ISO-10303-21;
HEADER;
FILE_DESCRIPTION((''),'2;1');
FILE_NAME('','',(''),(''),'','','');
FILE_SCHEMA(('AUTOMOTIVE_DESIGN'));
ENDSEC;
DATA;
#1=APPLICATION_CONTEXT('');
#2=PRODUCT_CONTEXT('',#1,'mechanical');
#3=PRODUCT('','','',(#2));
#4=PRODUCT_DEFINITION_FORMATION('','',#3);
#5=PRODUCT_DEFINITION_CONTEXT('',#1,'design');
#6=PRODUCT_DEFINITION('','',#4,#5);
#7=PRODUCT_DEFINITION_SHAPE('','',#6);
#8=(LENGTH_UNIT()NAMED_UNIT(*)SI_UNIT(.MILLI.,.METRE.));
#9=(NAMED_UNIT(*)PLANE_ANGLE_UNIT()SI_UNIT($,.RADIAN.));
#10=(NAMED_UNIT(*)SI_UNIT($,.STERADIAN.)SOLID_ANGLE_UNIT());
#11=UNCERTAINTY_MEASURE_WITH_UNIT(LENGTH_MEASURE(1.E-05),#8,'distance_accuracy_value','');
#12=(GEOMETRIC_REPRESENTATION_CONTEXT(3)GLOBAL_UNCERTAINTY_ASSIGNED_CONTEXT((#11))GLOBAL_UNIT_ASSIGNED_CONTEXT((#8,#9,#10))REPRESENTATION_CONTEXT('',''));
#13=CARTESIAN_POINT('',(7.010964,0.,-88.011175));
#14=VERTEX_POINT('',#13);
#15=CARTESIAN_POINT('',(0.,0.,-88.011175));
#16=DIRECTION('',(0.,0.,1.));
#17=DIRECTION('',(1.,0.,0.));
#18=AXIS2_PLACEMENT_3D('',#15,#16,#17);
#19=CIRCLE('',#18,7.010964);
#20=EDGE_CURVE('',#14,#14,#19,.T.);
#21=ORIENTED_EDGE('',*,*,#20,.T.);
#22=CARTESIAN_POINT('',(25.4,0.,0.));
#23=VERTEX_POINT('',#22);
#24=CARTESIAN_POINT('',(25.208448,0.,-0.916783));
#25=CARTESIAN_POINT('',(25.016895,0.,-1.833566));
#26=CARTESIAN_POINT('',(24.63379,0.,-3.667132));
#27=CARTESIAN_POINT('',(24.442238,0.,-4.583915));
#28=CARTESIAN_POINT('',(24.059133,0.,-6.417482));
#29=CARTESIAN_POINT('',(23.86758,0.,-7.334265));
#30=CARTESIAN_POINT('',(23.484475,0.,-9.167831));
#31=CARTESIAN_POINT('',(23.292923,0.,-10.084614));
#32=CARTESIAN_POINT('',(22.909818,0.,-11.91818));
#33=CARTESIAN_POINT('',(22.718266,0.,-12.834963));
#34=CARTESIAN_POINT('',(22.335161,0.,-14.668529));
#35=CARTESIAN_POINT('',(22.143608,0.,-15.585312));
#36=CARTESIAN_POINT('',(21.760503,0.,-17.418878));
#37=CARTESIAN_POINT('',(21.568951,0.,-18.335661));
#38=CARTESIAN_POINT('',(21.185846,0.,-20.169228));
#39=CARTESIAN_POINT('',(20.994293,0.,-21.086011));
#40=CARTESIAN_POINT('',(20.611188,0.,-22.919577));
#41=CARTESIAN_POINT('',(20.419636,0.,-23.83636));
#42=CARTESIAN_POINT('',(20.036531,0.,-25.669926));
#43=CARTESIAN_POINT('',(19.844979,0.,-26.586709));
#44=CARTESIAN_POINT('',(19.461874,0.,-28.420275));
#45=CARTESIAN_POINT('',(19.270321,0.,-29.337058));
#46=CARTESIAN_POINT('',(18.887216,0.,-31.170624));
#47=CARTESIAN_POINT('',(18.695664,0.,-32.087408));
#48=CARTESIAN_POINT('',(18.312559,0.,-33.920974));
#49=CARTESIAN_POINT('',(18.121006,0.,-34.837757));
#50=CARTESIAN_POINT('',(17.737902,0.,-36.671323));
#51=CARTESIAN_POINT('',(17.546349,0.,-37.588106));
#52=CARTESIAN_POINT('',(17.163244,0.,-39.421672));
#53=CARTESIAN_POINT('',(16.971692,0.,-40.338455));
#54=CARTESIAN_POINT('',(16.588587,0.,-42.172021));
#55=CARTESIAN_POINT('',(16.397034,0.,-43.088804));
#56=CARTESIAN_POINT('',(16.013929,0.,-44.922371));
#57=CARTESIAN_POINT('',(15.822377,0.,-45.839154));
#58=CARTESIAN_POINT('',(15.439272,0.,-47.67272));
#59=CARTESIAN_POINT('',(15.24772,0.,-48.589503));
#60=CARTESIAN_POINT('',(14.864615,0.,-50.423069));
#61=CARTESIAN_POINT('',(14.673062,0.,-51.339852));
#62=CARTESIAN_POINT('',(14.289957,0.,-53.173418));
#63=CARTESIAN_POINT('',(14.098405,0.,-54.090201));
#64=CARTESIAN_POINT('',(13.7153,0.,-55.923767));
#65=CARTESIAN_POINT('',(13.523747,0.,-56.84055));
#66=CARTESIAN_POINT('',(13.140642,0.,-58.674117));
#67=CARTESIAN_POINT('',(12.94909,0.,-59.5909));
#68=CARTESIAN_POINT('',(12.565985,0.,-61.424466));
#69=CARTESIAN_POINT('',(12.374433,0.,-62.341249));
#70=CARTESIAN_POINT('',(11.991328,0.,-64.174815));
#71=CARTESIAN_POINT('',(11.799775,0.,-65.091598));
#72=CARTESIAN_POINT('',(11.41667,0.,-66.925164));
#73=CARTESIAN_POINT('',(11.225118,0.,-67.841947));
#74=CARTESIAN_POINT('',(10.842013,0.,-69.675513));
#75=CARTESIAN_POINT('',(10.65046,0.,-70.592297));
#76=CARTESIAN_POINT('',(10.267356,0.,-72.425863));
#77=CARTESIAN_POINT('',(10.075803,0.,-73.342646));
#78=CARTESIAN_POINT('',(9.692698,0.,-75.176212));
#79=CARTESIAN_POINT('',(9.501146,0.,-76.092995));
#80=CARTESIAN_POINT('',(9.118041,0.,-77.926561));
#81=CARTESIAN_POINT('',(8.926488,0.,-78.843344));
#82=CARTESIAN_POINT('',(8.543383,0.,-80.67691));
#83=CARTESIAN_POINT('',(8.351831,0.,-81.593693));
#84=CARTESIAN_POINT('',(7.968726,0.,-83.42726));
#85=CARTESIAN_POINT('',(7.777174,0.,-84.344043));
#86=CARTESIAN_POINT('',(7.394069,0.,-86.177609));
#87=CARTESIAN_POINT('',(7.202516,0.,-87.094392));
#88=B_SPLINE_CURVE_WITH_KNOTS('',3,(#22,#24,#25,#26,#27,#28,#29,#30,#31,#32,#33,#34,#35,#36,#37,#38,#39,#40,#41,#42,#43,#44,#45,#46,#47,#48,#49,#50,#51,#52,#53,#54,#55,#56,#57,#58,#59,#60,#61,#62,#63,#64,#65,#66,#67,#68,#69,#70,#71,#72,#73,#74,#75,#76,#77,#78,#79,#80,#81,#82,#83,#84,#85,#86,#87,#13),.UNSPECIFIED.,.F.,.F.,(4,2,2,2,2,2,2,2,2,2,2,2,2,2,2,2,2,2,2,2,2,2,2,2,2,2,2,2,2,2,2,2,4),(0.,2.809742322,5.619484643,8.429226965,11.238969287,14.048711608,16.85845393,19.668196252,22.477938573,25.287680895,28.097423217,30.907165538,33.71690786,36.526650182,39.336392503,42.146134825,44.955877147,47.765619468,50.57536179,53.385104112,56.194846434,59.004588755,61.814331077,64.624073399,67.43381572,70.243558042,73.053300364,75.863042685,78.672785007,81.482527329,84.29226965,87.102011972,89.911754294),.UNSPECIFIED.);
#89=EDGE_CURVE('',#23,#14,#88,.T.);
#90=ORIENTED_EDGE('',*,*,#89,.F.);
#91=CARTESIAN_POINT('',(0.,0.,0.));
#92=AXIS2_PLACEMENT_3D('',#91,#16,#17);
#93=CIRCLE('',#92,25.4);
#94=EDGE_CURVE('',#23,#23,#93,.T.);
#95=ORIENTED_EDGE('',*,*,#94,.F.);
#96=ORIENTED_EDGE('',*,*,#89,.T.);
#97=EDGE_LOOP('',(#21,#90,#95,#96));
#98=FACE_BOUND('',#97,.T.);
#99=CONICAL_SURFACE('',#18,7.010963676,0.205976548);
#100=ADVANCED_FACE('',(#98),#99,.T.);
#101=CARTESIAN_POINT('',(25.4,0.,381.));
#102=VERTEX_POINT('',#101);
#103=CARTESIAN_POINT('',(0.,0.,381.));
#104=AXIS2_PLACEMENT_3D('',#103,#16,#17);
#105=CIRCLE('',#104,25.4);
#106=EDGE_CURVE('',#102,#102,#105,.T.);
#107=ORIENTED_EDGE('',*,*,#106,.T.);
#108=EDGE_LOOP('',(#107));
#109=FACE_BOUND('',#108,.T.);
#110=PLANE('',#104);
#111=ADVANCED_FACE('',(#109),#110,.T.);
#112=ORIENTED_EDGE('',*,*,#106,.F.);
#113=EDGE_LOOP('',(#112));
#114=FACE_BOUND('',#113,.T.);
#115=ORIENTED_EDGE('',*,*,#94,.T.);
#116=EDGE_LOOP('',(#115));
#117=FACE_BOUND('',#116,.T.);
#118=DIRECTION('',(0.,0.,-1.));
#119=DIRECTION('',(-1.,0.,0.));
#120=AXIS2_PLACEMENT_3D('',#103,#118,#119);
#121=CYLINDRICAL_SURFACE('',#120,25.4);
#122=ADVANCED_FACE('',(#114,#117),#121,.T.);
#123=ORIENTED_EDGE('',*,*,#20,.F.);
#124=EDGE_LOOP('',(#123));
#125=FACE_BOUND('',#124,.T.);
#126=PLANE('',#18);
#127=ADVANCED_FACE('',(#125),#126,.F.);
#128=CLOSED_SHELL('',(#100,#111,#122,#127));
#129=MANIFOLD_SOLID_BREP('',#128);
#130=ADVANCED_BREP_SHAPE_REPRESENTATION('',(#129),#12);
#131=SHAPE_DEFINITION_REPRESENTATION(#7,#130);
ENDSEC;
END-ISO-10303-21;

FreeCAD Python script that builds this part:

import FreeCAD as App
import Part
import Sketcher
Q = App.Units.Quantity


def add_polygon(sketch, points):
    """Adds a closed chain of lines whose ends are joined by coincident constraints."""
    first, n = sketch.GeometryCount, len(points)
    for a, b in zip(points, points[1:] + points[:1]):
        sketch.addGeometry(Part.LineSegment(App.Vector(*a, 0), App.Vector(*b, 0)), False)
    for i in range(n):
        sketch.addConstraint(Sketcher.Constraint("Coincident", first + i, 2, first + (i + 1) % n, 1))

doc = App.newDocument("Part")
body = doc.addObject("PartDesign::Body", "Body")

sketch1 = doc.addObject("Sketcher::SketchObject", "Sketch")
body.addObject(sketch1)
sketch1.AttachmentSupport = (doc.XY_Plane, [""])
sketch1.MapMode = "FlatFace"
sketch1.addGeometry(Part.Circle(App.Vector(0, 0, 0), App.Vector(0, 0, 1), 25), False)
sketch1.addConstraint(Sketcher.Constraint("Coincident", 0, 3, -1, 1))
sketch1.addConstraint(Sketcher.Constraint("Diameter", 0, Q("2 in")))
pad1 = doc.addObject("PartDesign::Pad", "Pad")
body.addObject(pad1)
pad1.Profile = sketch1
pad1.Length = Q("15 in")

sketch2 = doc.addObject("Sketcher::SketchObject", "Sketch001")
body.addObject(sketch2)
sketch2.AttachmentSupport = (doc.XZ_Plane, [""])
sketch2.MapMode = "FlatFace"
add_polygon(sketch2, [(-25, 0), (0, 0), (0, -88), (-7, -88)])
sketch2.addConstraint(Sketcher.Constraint("Horizontal", 0))
sketch2.addConstraint(Sketcher.Constraint("Vertical", 1))
sketch2.addConstraint(Sketcher.Constraint("Horizontal", 2))
sketch2.addConstraint(Sketcher.Constraint("Coincident", 0, 2, -1, 1))
sketch2.addConstraint(Sketcher.Constraint("DistanceX", 0, 1, 0, 2, Q("1 in")))
sketch2.addConstraint(Sketcher.Constraint("DistanceX", 2, 2, 2, 1, Q("7.010964 mm")))
sketch2.addConstraint(Sketcher.Constraint("DistanceY", 1, 2, 1, 1, Q("88.011175 mm")))
revolution = doc.addObject("PartDesign::Revolution", "Revolution")
body.addObject(revolution)
revolution.Profile = sketch2
revolution.ReferenceAxis = (sketch2, ["V_Axis"])
revolution.Angle = 360

doc.recompute()
